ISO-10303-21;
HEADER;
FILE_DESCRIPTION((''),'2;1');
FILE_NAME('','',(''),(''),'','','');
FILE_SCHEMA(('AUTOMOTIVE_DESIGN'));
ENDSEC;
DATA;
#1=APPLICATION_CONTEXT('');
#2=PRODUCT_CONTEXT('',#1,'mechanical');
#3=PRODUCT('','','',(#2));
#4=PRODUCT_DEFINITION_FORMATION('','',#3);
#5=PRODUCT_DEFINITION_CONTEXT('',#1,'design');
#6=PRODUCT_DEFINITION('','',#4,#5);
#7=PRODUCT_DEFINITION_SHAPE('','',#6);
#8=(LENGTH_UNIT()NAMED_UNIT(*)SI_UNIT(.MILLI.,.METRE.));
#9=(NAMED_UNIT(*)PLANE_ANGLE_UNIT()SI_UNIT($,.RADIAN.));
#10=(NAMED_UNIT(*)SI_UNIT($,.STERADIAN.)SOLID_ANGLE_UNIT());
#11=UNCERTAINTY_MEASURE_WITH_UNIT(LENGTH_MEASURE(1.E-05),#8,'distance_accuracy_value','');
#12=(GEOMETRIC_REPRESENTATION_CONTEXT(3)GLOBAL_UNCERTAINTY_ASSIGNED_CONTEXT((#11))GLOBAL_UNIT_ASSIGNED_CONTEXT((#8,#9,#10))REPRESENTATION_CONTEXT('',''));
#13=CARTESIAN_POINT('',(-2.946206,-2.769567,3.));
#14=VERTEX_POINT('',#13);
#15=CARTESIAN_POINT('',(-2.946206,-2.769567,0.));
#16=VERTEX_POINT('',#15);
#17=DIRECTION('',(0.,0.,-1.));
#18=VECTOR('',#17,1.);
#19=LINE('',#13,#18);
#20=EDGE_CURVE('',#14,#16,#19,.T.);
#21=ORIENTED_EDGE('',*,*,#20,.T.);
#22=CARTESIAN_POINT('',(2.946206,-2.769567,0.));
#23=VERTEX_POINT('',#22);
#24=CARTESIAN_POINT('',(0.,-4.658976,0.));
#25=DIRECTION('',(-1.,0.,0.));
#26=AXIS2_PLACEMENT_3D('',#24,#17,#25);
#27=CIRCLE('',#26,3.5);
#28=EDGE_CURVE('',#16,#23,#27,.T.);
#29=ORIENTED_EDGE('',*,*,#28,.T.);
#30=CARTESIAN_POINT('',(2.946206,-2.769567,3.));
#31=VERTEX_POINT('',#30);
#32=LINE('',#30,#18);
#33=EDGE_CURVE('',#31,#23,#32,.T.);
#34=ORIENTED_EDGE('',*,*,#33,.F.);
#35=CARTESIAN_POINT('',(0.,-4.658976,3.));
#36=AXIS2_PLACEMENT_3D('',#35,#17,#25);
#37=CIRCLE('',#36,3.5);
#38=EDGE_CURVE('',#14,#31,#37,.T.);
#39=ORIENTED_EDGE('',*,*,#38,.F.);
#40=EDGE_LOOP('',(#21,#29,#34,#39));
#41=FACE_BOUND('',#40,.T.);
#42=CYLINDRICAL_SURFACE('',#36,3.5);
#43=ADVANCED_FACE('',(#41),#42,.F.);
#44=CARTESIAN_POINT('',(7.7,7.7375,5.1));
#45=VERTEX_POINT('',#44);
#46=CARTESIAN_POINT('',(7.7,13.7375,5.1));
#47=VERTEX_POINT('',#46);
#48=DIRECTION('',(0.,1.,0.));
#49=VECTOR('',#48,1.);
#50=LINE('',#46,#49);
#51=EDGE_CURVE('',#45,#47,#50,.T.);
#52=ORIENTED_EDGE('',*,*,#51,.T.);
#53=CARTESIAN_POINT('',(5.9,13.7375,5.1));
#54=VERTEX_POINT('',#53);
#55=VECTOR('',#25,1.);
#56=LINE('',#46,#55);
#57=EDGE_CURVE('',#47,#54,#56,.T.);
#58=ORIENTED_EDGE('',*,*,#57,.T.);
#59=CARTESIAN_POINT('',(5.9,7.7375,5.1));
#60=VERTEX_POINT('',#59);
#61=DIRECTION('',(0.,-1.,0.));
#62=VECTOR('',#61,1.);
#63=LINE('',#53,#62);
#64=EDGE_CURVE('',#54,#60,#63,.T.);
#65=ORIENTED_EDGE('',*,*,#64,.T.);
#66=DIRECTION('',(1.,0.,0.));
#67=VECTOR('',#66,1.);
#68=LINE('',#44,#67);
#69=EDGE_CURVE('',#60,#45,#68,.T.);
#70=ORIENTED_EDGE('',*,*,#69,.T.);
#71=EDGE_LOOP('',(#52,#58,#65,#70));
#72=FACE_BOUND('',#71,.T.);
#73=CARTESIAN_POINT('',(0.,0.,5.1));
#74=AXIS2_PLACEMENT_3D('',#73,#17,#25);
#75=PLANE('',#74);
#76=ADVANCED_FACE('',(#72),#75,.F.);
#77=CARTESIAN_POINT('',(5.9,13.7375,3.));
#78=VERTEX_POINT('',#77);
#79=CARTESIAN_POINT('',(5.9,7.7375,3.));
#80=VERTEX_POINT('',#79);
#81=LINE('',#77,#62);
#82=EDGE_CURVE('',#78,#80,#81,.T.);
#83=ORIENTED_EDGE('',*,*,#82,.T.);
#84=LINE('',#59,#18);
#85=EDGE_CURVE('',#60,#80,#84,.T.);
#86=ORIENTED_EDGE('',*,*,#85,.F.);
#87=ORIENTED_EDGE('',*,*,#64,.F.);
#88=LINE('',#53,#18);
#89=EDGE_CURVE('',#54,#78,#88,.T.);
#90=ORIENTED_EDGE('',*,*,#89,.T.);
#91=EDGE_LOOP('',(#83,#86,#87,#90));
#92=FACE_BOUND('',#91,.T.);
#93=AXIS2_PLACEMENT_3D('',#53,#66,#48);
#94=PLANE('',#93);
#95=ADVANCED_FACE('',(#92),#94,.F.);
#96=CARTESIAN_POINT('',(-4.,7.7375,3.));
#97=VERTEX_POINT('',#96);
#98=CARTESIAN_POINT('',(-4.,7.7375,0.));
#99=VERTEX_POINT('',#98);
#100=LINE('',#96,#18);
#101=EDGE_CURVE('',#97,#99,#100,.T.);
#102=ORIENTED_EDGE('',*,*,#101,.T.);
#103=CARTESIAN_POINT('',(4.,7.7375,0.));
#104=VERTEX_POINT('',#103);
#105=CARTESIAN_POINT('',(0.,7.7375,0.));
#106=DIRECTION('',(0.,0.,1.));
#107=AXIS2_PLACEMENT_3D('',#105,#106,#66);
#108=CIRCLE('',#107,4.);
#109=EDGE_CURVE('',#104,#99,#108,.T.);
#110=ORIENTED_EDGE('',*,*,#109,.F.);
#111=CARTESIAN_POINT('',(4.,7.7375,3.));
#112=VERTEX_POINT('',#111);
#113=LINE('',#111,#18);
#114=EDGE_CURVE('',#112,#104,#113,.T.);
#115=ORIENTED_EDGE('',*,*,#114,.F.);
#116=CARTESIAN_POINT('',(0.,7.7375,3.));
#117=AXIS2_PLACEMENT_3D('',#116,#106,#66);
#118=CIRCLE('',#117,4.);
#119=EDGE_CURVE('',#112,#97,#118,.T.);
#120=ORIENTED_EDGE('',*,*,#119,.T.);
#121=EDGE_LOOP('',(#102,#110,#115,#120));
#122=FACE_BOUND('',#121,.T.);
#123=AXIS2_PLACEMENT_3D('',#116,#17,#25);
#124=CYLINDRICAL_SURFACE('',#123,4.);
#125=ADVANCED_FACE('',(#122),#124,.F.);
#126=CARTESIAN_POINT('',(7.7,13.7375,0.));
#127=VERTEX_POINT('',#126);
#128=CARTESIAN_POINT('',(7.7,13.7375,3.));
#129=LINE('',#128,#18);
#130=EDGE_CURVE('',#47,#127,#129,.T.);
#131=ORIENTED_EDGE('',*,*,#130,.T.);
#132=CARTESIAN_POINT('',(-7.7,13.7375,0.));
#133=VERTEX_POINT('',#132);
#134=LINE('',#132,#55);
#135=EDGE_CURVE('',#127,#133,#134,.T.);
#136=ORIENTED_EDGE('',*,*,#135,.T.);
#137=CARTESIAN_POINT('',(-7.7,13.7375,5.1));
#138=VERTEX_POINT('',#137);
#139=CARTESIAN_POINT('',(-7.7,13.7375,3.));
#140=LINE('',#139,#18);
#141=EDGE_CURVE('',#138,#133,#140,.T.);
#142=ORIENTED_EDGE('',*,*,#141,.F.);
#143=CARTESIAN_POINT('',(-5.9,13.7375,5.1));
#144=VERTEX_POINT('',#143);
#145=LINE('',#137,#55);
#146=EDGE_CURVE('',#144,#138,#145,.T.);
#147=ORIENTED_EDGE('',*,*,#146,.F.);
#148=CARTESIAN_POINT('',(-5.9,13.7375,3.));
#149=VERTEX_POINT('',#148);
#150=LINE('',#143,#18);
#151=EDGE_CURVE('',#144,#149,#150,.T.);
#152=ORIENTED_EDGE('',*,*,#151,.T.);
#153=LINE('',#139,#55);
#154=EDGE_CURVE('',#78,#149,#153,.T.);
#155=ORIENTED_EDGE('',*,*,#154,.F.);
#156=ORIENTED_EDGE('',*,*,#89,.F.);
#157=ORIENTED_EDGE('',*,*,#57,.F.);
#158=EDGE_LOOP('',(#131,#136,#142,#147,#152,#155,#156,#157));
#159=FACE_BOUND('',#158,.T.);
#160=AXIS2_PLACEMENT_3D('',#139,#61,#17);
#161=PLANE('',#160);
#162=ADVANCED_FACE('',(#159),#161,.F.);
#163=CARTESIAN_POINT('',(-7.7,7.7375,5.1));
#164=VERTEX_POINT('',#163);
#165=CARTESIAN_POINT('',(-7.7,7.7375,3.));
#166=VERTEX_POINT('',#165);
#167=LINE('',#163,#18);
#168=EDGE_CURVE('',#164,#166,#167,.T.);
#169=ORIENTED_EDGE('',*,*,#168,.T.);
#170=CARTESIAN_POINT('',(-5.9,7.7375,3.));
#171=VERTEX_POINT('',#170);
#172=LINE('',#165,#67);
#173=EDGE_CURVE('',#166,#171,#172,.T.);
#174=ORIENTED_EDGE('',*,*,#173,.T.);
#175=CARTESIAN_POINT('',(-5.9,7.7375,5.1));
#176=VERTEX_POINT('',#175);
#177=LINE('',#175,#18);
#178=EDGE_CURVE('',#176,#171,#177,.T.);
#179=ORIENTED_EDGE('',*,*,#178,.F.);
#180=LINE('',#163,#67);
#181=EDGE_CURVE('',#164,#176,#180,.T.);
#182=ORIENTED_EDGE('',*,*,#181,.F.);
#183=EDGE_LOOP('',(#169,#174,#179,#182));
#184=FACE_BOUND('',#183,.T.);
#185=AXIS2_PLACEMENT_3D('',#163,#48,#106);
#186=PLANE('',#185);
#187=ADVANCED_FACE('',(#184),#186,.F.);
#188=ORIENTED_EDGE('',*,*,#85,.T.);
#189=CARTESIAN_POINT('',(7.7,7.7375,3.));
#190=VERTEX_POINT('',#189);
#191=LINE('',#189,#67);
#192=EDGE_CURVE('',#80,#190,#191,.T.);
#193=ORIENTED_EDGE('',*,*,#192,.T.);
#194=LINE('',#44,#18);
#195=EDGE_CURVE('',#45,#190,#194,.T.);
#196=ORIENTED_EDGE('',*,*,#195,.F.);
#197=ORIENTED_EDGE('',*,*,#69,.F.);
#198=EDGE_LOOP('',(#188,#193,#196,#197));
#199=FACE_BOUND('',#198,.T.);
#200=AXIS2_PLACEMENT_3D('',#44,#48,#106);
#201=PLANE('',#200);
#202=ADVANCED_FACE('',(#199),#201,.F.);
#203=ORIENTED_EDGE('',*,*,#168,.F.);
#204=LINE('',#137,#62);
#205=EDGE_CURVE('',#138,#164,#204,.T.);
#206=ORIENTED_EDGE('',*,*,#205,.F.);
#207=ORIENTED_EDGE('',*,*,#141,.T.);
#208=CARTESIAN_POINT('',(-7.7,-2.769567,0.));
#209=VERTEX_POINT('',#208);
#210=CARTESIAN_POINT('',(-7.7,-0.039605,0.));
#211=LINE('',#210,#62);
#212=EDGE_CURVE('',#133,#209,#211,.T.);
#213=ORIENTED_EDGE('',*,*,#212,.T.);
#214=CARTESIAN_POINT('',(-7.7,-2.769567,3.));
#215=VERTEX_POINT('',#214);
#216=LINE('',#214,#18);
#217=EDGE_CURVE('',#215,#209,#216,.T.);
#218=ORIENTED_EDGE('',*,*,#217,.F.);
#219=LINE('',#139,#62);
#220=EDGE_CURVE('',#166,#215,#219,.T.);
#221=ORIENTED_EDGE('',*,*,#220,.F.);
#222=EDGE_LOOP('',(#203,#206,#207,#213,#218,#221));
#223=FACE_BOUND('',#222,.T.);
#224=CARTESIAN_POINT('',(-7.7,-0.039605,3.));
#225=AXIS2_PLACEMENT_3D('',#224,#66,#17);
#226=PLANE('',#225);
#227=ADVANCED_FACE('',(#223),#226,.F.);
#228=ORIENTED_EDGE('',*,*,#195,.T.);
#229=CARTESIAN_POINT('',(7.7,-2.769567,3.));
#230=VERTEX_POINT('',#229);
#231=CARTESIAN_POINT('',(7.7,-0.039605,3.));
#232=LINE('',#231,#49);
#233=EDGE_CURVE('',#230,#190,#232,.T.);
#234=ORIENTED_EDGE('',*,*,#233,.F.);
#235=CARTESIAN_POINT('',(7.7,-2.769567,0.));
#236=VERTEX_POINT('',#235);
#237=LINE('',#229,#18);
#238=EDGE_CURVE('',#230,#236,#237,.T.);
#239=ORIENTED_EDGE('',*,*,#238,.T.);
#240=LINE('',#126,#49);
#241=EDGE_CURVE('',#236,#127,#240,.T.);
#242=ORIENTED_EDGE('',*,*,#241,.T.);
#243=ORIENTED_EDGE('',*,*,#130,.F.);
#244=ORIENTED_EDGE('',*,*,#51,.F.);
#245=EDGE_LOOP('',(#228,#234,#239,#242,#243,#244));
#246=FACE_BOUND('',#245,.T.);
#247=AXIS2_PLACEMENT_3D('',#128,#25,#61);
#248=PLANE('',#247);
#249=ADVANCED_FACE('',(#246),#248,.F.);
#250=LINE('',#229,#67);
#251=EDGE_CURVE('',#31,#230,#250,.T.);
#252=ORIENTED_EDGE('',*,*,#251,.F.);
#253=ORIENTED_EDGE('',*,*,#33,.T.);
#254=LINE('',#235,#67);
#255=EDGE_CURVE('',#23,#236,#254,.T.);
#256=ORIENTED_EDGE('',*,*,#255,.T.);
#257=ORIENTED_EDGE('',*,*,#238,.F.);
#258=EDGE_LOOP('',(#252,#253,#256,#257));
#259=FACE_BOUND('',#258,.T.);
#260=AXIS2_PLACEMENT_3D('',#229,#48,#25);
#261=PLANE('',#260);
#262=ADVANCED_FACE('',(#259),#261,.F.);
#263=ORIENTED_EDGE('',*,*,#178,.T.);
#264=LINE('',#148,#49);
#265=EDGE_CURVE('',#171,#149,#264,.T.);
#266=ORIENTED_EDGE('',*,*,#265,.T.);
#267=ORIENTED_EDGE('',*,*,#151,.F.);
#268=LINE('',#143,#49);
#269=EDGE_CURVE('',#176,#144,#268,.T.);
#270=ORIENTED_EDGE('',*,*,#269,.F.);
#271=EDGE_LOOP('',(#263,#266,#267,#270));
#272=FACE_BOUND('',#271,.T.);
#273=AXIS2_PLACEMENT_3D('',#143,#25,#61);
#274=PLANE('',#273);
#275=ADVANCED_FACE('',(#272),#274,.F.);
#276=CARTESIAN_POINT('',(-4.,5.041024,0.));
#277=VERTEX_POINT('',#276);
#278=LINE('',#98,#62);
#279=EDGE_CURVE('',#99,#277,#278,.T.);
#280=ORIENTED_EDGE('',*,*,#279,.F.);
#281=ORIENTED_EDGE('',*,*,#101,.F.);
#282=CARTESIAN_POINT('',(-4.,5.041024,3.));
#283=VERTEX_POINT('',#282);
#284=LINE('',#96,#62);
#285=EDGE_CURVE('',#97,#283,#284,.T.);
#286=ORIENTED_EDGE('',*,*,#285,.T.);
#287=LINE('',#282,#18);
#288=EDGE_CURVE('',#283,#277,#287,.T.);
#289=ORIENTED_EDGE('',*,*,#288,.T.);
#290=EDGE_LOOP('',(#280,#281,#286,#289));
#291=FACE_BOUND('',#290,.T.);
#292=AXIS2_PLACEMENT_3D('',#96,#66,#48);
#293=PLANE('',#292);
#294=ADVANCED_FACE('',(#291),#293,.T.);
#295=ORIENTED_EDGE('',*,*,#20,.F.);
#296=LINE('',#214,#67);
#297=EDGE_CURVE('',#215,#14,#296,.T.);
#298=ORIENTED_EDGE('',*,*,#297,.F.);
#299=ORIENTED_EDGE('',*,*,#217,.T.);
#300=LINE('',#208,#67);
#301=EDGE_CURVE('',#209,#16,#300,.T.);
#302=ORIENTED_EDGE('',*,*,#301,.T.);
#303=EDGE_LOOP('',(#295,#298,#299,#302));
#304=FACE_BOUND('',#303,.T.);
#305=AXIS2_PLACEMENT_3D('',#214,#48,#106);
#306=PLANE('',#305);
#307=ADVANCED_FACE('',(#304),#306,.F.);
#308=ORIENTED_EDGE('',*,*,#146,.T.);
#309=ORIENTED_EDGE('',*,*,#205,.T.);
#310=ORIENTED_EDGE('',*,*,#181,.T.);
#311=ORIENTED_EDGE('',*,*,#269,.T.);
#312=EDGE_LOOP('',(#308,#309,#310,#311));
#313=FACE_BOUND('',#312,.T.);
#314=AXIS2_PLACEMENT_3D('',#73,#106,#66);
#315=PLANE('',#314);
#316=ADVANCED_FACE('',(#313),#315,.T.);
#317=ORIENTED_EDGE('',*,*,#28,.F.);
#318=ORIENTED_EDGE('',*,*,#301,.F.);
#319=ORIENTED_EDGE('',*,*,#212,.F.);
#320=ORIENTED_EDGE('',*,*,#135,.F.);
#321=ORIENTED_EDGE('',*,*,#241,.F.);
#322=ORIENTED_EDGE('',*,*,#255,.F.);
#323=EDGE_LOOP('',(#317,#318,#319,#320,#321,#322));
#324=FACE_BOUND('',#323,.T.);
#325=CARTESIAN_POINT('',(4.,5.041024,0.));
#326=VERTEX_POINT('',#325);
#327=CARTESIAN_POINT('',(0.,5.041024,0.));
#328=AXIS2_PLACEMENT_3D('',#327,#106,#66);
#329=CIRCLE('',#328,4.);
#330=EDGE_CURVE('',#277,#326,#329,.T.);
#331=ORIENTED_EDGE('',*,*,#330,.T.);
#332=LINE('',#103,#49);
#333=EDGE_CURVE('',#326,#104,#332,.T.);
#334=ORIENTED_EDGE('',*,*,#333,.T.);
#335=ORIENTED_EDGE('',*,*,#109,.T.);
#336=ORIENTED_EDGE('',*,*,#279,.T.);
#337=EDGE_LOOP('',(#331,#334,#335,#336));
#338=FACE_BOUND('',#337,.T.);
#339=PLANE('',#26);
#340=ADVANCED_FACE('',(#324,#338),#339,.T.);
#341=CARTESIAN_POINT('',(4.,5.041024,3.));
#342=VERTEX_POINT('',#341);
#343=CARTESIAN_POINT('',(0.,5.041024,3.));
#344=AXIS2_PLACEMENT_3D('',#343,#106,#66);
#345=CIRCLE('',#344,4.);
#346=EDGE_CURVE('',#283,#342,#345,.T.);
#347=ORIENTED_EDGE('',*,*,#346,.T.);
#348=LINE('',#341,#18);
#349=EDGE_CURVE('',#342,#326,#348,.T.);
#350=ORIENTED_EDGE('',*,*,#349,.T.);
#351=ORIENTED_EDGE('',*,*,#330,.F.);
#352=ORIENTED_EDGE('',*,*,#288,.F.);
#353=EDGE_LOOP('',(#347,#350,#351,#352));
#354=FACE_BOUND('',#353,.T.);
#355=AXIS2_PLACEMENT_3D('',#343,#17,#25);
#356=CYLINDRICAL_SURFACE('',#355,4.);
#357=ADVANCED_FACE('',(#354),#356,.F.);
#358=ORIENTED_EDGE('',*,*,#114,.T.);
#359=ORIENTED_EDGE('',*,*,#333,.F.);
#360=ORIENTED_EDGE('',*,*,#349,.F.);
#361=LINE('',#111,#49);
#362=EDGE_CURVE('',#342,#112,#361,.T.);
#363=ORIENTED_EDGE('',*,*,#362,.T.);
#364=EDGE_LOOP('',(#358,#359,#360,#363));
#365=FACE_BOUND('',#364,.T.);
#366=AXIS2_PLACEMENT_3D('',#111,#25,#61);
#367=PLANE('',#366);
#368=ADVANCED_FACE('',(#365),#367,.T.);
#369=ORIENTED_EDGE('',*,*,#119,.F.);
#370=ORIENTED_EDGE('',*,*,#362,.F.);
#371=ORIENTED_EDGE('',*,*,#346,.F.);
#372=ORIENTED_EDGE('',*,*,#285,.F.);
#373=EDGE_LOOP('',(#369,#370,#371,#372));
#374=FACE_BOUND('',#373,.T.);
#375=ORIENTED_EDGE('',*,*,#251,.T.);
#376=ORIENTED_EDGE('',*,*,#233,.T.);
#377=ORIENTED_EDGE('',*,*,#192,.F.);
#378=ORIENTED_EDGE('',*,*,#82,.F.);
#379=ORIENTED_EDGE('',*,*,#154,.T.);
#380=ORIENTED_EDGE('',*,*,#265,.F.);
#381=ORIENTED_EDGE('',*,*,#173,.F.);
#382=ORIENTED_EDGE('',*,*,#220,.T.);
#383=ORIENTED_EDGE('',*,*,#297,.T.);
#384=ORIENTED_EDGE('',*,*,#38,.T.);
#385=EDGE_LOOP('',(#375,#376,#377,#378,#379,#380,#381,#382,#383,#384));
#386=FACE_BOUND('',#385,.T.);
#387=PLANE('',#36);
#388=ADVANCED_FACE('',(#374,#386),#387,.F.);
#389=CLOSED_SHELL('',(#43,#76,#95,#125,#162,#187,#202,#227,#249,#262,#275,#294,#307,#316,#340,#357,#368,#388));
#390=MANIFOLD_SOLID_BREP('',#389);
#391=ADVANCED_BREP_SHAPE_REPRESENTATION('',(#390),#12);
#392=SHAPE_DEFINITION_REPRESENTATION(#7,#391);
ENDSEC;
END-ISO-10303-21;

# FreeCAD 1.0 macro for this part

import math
import FreeCAD as App
import Part
import Sketcher
from FreeCAD import Vector
Q = App.Units.Quantity

doc = App.newDocument("Part")
body = doc.addObject("PartDesign::Body", "Body")

sketch1 = body.newObject("Sketcher::SketchObject", "Sketch")
sketch1.AttachmentSupport = (doc.getObject("XY_Plane"), [""])
sketch1.MapMode = "FlatFace"
sketch1.addGeometry([
    Part.LineSegment(Vector(7.7, 13.7, 0), Vector(-7.7, 13.7, 0)),
    Part.LineSegment(Vector(-7.7, 13.7, 0), Vector(-7.7, -2.8, 0)),
    Part.LineSegment(Vector(-7.7, -2.8, 0), Vector(-2.9, -2.8, 0)),
    Part.ArcOfCircle(Part.Circle(Vector(0, -4.7, 0), Vector(0, 0, 1), 3.5), math.radians(33), math.radians(147)),
    Part.LineSegment(Vector(2.9, -2.8, 0), Vector(7.7, -2.8, 0)),
    Part.LineSegment(Vector(7.7, -2.8, 0), Vector(7.7, 13.7, 0)),
    Part.LineSegment(Vector(4, 7.7, 0), Vector(4, 5, 0)),
    Part.ArcOfCircle(Part.Circle(Vector(0, 5, 0), Vector(0, 0, 1), 4), math.radians(180), math.radians(360)),
    Part.LineSegment(Vector(-4, 5, 0), Vector(-4, 7.7, 0)),
    Part.ArcOfCircle(Part.Circle(Vector(0, 7.7, 0), Vector(0, 0, 1), 4), math.radians(0), math.radians(180)),
], False)
sketch1.addConstraint([
    Sketcher.Constraint("Coincident", 0, 2, 1, 1),
    Sketcher.Constraint("Coincident", 1, 2, 2, 1),
    Sketcher.Constraint("Coincident", 2, 2, 3, 2),
    Sketcher.Constraint("Coincident", 3, 1, 4, 1),
    Sketcher.Constraint("Coincident", 4, 2, 5, 1),
    Sketcher.Constraint("Coincident", 5, 2, 0, 1),
    Sketcher.Constraint("Tangent", 6, 2, 7, 2),
    Sketcher.Constraint("Tangent", 7, 1, 8, 1),
    Sketcher.Constraint("Tangent", 8, 2, 9, 2),
    Sketcher.Constraint("Tangent", 9, 1, 6, 1),
    Sketcher.Constraint("Horizontal", 0),
    Sketcher.Constraint("Vertical", 1),
    Sketcher.Constraint("Horizontal", 2),
    Sketcher.Constraint("Horizontal", 4),
    Sketcher.Constraint("Vertical", 5),
    Sketcher.Constraint("Vertical", 6),
    Sketcher.Constraint("Vertical", 8),
    Sketcher.Constraint("Symmetric", 2, 2, 3, 1, -2),
    Sketcher.Constraint("PointOnObject", 7, 3, -2),
    Sketcher.Constraint("Equal", 2, 4),
    Sketcher.Constraint("Radius", 7, Q("4 mm")),
    Sketcher.Constraint("Radius", 3, Q("3.5 mm")),
    Sketcher.Constraint("DistanceX", 0, 2, 0, 1, Q("15.4 mm")),
    Sketcher.Constraint("DistanceY", 9, 3, 0, 2, Q("6 mm")),
    Sketcher.Constraint("DistanceY", 3, 3, 7, 3, Q("9.7 mm")),
    Sketcher.Constraint("DistanceY", -1, 1, 9, 3, Q("7.7375 mm")),
    Sketcher.Constraint("DistanceX", 2, 1, 2, 2, Q("4.753794 mm")),
    Sketcher.Constraint("DistanceY", 1, 2, 1, 1, Q("16.507066 mm")),
])
pad1 = body.newObject("PartDesign::Pad", "Pad")
pad1.Profile = sketch1
pad1.Length = 3

sketch2 = body.newObject("Sketcher::SketchObject", "Sketch001")
sketch2.AttachmentSupport = (doc.getObject("XY_Plane"), [""])
sketch2.MapMode = "FlatFace"
sketch2.AttachmentOffset = App.Placement(Vector(0, 0, 3), App.Rotation())
sketch2.addGeometry([
    Part.LineSegment(Vector(-7.7, 13.7, 0), Vector(-7.7, 7.7, 0)),
    Part.LineSegment(Vector(-7.7, 7.7, 0), Vector(-5.9, 7.7, 0)),
    Part.LineSegment(Vector(-5.9, 7.7, 0), Vector(-5.9, 13.7, 0)),
    Part.LineSegment(Vector(-5.9, 13.7, 0), Vector(-7.7, 13.7, 0)),
    Part.LineSegment(Vector(5.9, 13.7, 0), Vector(5.9, 7.7, 0)),
    Part.LineSegment(Vector(5.9, 7.7, 0), Vector(7.7, 7.7, 0)),
    Part.LineSegment(Vector(7.7, 7.7, 0), Vector(7.7, 13.7, 0)),
    Part.LineSegment(Vector(7.7, 13.7, 0), Vector(5.9, 13.7, 0)),
], False)
sketch2.addConstraint([
    Sketcher.Constraint("Coincident", 0, 2, 1, 1),
    Sketcher.Constraint("Coincident", 1, 2, 2, 1),
    Sketcher.Constraint("Coincident", 2, 2, 3, 1),
    Sketcher.Constraint("Coincident", 3, 2, 0, 1),
    Sketcher.Constraint("Coincident", 4, 2, 5, 1),
    Sketcher.Constraint("Coincident", 5, 2, 6, 1),
    Sketcher.Constraint("Coincident", 6, 2, 7, 1),
    Sketcher.Constraint("Coincident", 7, 2, 4, 1),
    Sketcher.Constraint("Vertical", 0),
    Sketcher.Constraint("Horizontal", 1),
    Sketcher.Constraint("Vertical", 2),
    Sketcher.Constraint("Horizontal", 3),
    Sketcher.Constraint("Vertical", 4),
    Sketcher.Constraint("Horizontal", 5),
    Sketcher.Constraint("Vertical", 6),
    Sketcher.Constraint("Horizontal", 7),
    Sketcher.Constraint("Symmetric", 1, 2, 4, 2, -2),
    Sketcher.Constraint("Symmetric", 3, 2, 6, 2, -2),
    Sketcher.Constraint("DistanceY", 0, 2, 0, 1, Q("6 mm")),
    Sketcher.Constraint("DistanceX", 1, 1, 1, 2, Q("1.8 mm")),
    Sketcher.Constraint("DistanceX", 0, 2, -1, 1, Q("7.7 mm")),
    Sketcher.Constraint("DistanceY", -1, 1, 0, 2, Q("7.7375 mm")),
])
pad2 = body.newObject("PartDesign::Pad", "Pad001")
pad2.Profile = sketch2
pad2.Length = 2.1

doc.recompute()
